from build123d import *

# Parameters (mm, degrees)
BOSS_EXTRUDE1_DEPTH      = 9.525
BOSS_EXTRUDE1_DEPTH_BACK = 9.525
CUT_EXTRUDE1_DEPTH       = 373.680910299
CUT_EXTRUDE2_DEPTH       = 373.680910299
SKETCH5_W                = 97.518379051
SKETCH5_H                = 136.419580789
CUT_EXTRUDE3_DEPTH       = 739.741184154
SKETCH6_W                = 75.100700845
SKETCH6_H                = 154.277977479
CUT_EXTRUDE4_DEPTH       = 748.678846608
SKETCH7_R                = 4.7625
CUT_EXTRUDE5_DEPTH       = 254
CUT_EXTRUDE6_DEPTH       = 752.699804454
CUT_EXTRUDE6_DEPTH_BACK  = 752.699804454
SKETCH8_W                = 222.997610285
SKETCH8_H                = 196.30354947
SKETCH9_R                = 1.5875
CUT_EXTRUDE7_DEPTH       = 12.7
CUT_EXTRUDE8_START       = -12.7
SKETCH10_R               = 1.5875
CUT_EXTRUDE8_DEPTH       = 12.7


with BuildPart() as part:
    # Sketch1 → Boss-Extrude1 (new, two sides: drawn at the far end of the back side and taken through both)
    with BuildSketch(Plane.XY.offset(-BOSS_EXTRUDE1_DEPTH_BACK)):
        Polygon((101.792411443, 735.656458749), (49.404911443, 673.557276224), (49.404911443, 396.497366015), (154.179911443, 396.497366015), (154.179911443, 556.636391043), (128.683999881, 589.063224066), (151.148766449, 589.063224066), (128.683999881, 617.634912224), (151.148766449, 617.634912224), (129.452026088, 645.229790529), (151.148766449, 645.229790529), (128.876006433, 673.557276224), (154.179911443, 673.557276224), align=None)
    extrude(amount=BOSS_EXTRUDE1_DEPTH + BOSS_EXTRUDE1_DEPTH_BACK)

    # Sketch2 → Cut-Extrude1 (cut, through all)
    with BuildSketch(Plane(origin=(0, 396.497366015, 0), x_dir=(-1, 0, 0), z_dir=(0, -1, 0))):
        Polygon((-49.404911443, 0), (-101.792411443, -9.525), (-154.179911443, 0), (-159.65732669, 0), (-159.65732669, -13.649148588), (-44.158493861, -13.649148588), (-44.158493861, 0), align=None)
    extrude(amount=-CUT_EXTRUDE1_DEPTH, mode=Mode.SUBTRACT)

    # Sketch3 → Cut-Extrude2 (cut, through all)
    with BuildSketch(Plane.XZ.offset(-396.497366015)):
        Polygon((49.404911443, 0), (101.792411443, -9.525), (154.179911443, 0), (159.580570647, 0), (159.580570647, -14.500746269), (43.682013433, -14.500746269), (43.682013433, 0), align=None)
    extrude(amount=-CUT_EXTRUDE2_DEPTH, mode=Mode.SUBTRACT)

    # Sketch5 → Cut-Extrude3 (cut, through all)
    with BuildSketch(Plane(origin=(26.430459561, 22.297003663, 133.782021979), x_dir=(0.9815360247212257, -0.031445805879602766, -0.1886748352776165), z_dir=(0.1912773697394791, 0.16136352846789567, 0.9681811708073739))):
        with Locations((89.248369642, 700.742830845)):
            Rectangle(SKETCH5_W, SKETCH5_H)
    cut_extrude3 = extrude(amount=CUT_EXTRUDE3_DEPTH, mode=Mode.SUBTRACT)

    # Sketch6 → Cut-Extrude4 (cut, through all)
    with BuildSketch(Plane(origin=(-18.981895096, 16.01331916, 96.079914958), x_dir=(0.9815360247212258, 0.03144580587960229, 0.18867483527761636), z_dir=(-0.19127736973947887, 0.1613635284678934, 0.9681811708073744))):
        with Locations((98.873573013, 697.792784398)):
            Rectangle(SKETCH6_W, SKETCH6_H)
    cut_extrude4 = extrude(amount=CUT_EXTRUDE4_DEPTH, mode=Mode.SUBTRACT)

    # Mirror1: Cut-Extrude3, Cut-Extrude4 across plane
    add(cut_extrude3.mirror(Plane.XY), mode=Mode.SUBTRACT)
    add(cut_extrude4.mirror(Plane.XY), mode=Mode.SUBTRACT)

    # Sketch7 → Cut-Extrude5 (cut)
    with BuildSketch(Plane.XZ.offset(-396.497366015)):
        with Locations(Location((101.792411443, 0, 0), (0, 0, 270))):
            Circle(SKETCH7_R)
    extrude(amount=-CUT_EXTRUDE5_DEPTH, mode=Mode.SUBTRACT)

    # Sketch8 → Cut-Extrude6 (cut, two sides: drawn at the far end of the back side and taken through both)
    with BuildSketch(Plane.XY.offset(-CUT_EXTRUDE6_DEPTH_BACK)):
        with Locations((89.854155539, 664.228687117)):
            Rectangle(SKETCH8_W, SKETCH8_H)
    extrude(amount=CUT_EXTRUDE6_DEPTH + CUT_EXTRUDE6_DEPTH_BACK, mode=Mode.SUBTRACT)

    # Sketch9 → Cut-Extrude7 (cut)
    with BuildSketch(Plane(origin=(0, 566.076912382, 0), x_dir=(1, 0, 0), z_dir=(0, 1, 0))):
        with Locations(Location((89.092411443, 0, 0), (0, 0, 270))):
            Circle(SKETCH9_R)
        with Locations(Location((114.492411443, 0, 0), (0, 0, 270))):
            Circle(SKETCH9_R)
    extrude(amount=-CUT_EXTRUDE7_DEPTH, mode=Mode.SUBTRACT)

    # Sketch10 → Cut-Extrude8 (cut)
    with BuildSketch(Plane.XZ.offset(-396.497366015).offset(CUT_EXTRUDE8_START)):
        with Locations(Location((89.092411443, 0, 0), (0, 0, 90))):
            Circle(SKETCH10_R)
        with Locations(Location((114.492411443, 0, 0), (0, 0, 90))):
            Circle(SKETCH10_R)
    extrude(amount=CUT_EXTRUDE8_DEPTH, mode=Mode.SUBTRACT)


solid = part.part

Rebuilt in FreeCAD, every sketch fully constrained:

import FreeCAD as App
import Part
import Sketcher
from FreeCAD import Vector
Q = App.Units.Quantity


def add_polygon(sketch, points):
    """Adds a closed chain of lines whose ends are joined by coincident constraints."""
    first, n = sketch.GeometryCount, len(points)
    for a, b in zip(points, points[1:] + points[:1]):
        sketch.addGeometry(Part.LineSegment(App.Vector(*a, 0), App.Vector(*b, 0)), False)
    for i in range(n):
        sketch.addConstraint(Sketcher.Constraint("Coincident", first + i, 2, first + (i + 1) % n, 1))

doc = App.newDocument("Part")
params = doc.addObject("Spreadsheet::Sheet", "Params")
for row, (alias, value) in enumerate([
    ("sketch1_width", "4.125 in"),
    ("pad1_length", "0.375 in"),
    ("pad1_length2", "0.375 in"),
    ("sketch6_diameter", "0.375 in"),
    ("pocket5_length", "10 in"),
    ("sketch8_diameter", "0.125 in"),
    ("pocket7_length", "0.5 in"),
    ("sketch9_diameter", "0.125 in"),
    ("pocket8_length", "0.5 in"),
], start=1):
    params.set(f"A{row}", alias)
    params.set(f"B{row}", "=" + value)
    params.setAlias(f"B{row}", alias)

body = doc.addObject("PartDesign::Body", "Body")

# Sketch on XY plane
sketch1 = doc.addObject("Sketcher::SketchObject", "Sketch")
body.addObject(sketch1)
sketch1.AttachmentSupport = (doc.XY_Plane, [""])
sketch1.MapMode = "FlatFace"
add_polygon(sketch1, [(101.792411, 735.656459), (49.404911, 673.557276), (49.404911, 396.497366), (154.179911, 396.497366), (154.179911, 556.636391), (128.684, 589.063224), (151.148766, 589.063224), (128.684, 617.634912), (151.148766, 617.634912), (129.452026, 645.229791), (151.148766, 645.229791), (128.876006, 673.557276), (154.179911, 673.557276)])  # lines 0-12
sketch1.addConstraint([
    Sketcher.Constraint("Vertical", 1),
    Sketcher.Constraint("Horizontal", 2),
    Sketcher.Constraint("Vertical", 3),
    Sketcher.Constraint("Horizontal", 5),
    Sketcher.Constraint("Horizontal", 7),
    Sketcher.Constraint("Horizontal", 9),
    Sketcher.Constraint("Horizontal", 11),
    Sketcher.Constraint("Parallel", 4, 6),
    Sketcher.Constraint("Parallel", 6, 8),
    Sketcher.Constraint("Parallel", 8, 10),
    Sketcher.Constraint("Horizontal", 0, 2, 10, 2),
    Sketcher.Constraint("Vertical", 4, 2, 6, 2),
    Sketcher.Constraint("Vertical", 5, 2, 7, 2),
    Sketcher.Constraint("Vertical", 7, 2, 9, 2),
    Sketcher.Constraint("Vertical", 3, 2, 11, 2),
    Sketcher.Constraint("Equal", 0, 12),
    Sketcher.Constraint("DistanceX", 2, 1, 2, 2, Q("4.125 in")),
    Sketcher.Constraint("DistanceX", 9, 1, 9, 2, 21.69674),
    Sketcher.Constraint("DistanceY", 1, 2, 1, 1, 277.05991),
    Sketcher.Constraint("DistanceX", -1, 1, 4, 2, 128.684),
    Sketcher.Constraint("Distance", 4, 41.249739),
    Sketcher.Constraint("Distance", 6, 36.345661),
    Sketcher.Constraint("DistanceX", 5, 1, 5, 2, 22.464767),
    Sketcher.Constraint("DistanceX", 11, 1, 11, 2, 25.303905),
    Sketcher.Constraint("DistanceY", -1, 1, 3, 2, 556.636391),
    Sketcher.Constraint("DistanceY", -1, 1, 12, 2, 735.656459),
])
sketch1.setExpression("Constraints[29]", "Params.sketch1_width")
pad1 = doc.addObject("PartDesign::Pad", "Pad")
body.addObject(pad1)
pad1.Profile = sketch1
pad1.Type = "TwoLengths"
pad1.setExpression("Length", "Params.pad1_length")
pad1.setExpression("Length2", "Params.pad1_length2")

# Sketch on XZ plane
sketch2 = doc.addObject("Sketcher::SketchObject", "Sketch001")
body.addObject(sketch2)
sketch2.AttachmentSupport = (doc.XZ_Plane, [""])
sketch2.MapMode = "FlatFace"
sketch2.AttachmentOffset = App.Placement(Vector(0, 0, -396.497366), App.Rotation())
add_polygon(sketch2, [(49.404911, 0), (101.792411, 9.525), (154.179911, 0), (159.657327, 0), (159.657327, 13.649149), (44.158494, 13.649149), (44.158494, 0)])  # lines 0-6
sketch2.addConstraint([
    Sketcher.Constraint("Horizontal", 2),
    Sketcher.Constraint("Vertical", 3),
    Sketcher.Constraint("Horizontal", 4),
    Sketcher.Constraint("Vertical", 5),
    Sketcher.Constraint("Horizontal", 6),
    Sketcher.Constraint("PointOnObject", 1, 2, -1),
    Sketcher.Constraint("PointOnObject", 5, 2, -1),
    Sketcher.Constraint("Equal", 0, 1),
    Sketcher.Constraint("DistanceY", -1, 1, 0, 2, Q("0.375 in")),
    Sketcher.Constraint("DistanceX", 0, 2, 1, 2, Q("2.0625 in")),
    Sketcher.Constraint("DistanceY", 3, 1, 3, 2, 13.649149),
    Sketcher.Constraint("DistanceX", 2, 1, 2, 2, 5.477415),
    Sketcher.Constraint("DistanceX", 4, 2, 4, 1, 115.498833),
    Sketcher.Constraint("DistanceX", -1, 1, 0, 2, 101.792411),
])
pocket1 = doc.addObject("PartDesign::Pocket", "Pocket")
body.addObject(pocket1)
pocket1.Profile = sketch2
pocket1.Type = "ThroughAll"

# Sketch on XZ plane
sketch3 = doc.addObject("Sketcher::SketchObject", "Sketch002")
body.addObject(sketch3)
sketch3.AttachmentSupport = (doc.XZ_Plane, [""])
sketch3.MapMode = "FlatFace"
sketch3.AttachmentOffset = App.Placement(Vector(0, 0, -396.497366), App.Rotation())
add_polygon(sketch3, [(101.792411, -9.525), (49.404911, 0), (43.682013, 0), (43.682013, -14.500746), (159.580571, -14.500746), (159.580571, 0), (154.179911, 0)])  # lines 0-6
sketch3.addConstraint([
    Sketcher.Constraint("Horizontal", 1),
    Sketcher.Constraint("Vertical", 2),
    Sketcher.Constraint("Horizontal", 3),
    Sketcher.Constraint("Vertical", 4),
    Sketcher.Constraint("Horizontal", 5),
    Sketcher.Constraint("PointOnObject", 0, 2, -1),
    Sketcher.Constraint("PointOnObject", 4, 2, -1),
    Sketcher.Constraint("Equal", 0, 6),
    Sketcher.Constraint("DistanceY", 6, 2, -1, 1, Q("0.375 in")),
    Sketcher.Constraint("DistanceX", 0, 2, 5, 2, Q("4.125 in")),
    Sketcher.Constraint("DistanceX", 1, 2, 1, 1, 5.722898),
    Sketcher.Constraint("DistanceX", 5, 2, 5, 1, 5.400659),
    Sketcher.Constraint("DistanceY", 2, 2, 2, 1, 14.500746),
    Sketcher.Constraint("DistanceX", -1, 1, 0, 2, 49.404911),
])
pocket2 = doc.addObject("PartDesign::Pocket", "Pocket001")
body.addObject(pocket2)
pocket2.Profile = sketch3
pocket2.Type = "ThroughAll"

# Sketch on an angled plane
sketch4 = doc.addObject("Sketcher::SketchObject", "Sketch003")
body.addObject(sketch4)
sketch4.Placement = App.Placement(Vector(26.43046, 22.297004, 133.782022), App.Rotation(Vector(0.981536025, -0.031445806, -0.188674835), Vector(0, 0.986393924, -0.164398987), Vector(0.19127737, 0.161363528, 0.968181171), "ZXY"))
add_polygon(sketch4, [(40.48918, 768.952622), (40.48918, 632.533041), (138.007559, 632.533041), (138.007559, 768.952622)])  # lines 0-3
sketch4.addConstraint([
    Sketcher.Constraint("Vertical", 0),
    Sketcher.Constraint("Horizontal", 1),
    Sketcher.Constraint("Vertical", 2),
    Sketcher.Constraint("Horizontal", 3),
    Sketcher.Constraint("DistanceX", 1, 1, 1, 2, 97.518379),
    Sketcher.Constraint("DistanceY", 0, 2, 0, 1, 136.419581),
    Sketcher.Constraint("DistanceX", -1, 1, 0, 2, 40.48918),
    Sketcher.Constraint("DistanceY", -1, 1, 0, 2, 632.533041),
])
pocket3 = doc.addObject("PartDesign::Pocket", "Pocket002")
body.addObject(pocket3)
pocket3.Profile = sketch4
pocket3.Type = "ThroughAll"
pocket3.Reversed = True

# Sketch on an angled plane
sketch5 = doc.addObject("Sketcher::SketchObject", "Sketch004")
body.addObject(sketch5)
sketch5.Placement = App.Placement(Vector(-18.981895, 16.013319, 96.079915), App.Rotation(Vector(0.981536025, 0.031445806, 0.188674835), Vector(0, 0.986393924, -0.164398987), Vector(-0.19127737, 0.161363528, 0.968181171), "ZXY"))
add_polygon(sketch5, [(61.323223, 774.931774), (61.323223, 620.653796), (136.423923, 620.653796), (136.423923, 774.931774)])  # lines 0-3
sketch5.addConstraint([
    Sketcher.Constraint("Vertical", 0),
    Sketcher.Constraint("Horizontal", 1),
    Sketcher.Constraint("Vertical", 2),
    Sketcher.Constraint("Horizontal", 3),
    Sketcher.Constraint("DistanceX", 1, 1, 1, 2, 75.100701),
    Sketcher.Constraint("DistanceX", -1, 1, 0, 2, Q("2.4143001 in")),
    Sketcher.Constraint("DistanceY", 0, 2, 0, 1, 154.277978),
    Sketcher.Constraint("DistanceY", -1, 1, 0, 2, 620.653796),
])
pocket4 = doc.addObject("PartDesign::Pocket", "Pocket003")
body.addObject(pocket4)
pocket4.Profile = sketch5
pocket4.Type = "ThroughAll"
pocket4.Reversed = True
doc.recompute()

mirrored = doc.addObject("PartDesign::Mirrored", "Mirrored")
body.addObject(mirrored)
mirrored.Originals = [pocket3, pocket4]
mirrored.MirrorPlane = (doc.XY_Plane, [""])
body.Tip = mirrored

# Sketch on XZ plane
sketch6 = doc.addObject("Sketcher::SketchObject", "Sketch005")
body.addObject(sketch6)
sketch6.AttachmentSupport = (doc.XZ_Plane, [""])
sketch6.MapMode = "FlatFace"
sketch6.AttachmentOffset = App.Placement(Vector(0, 0, -396.497366), App.Rotation())
sketch6.addGeometry(Part.Circle(Vector(101.792411, 0, 0), Vector(0, 0, 1), 4.7625), False)
sketch6.addConstraint([
    Sketcher.Constraint("PointOnObject", 0, 3, -1),
    Sketcher.Constraint("Diameter", 0, Q("0.375 in")),
    Sketcher.Constraint("DistanceX", -1, 1, 0, 3, 101.792411),
])
sketch6.setExpression("Constraints[1]", "Params.sketch6_diameter")
pocket5 = doc.addObject("PartDesign::Pocket", "Pocket004")
body.addObject(pocket5)
pocket5.Profile = sketch6
pocket5.setExpression("Length", "Params.pocket5_length")

# Sketch on XY plane
sketch7 = doc.addObject("Sketcher::SketchObject", "Sketch006")
body.addObject(sketch7)
sketch7.AttachmentSupport = (doc.XY_Plane, [""])
sketch7.MapMode = "FlatFace"
add_polygon(sketch7, [(-21.64465, 762.380462), (-21.64465, 566.076912), (201.352961, 566.076912), (201.352961, 762.380462)])  # lines 0-3
sketch7.addConstraint([
    Sketcher.Constraint("Vertical", 0),
    Sketcher.Constraint("Horizontal", 1),
    Sketcher.Constraint("Vertical", 2),
    Sketcher.Constraint("Horizontal", 3),
    Sketcher.Constraint("DistanceX", 1, 1, 1, 2, 222.99761),
    Sketcher.Constraint("DistanceY", 0, 2, 0, 1, 196.303549),
    Sketcher.Constraint("DistanceX", 0, 2, -1, 1, 21.64465),
    Sketcher.Constraint("DistanceY", -1, 1, 2, 2, 762.380462),
])
pocket6 = doc.addObject("PartDesign::Pocket", "Pocket005")
body.addObject(pocket6)
pocket6.Profile = sketch7
pocket6.Type = "ThroughAll"
pocket6.Midplane = True

# Sketch on XZ plane
sketch8 = doc.addObject("Sketcher::SketchObject", "Sketch007")
body.addObject(sketch8)
sketch8.AttachmentSupport = (doc.XZ_Plane, [""])
sketch8.MapMode = "FlatFace"
sketch8.AttachmentOffset = App.Placement(Vector(0, 0, -566.076912), App.Rotation())
sketch8.addGeometry([
    Part.Circle(Vector(89.092411, 0, 0), Vector(0, 0, 1), 1.5875),
    Part.Circle(Vector(114.492411, 0, 0), Vector(0, 0, 1), 1.5875),
], False)
sketch8.addConstraint([
    Sketcher.Constraint("Equal", 0, 1),
    Sketcher.Constraint("PointOnObject", 0, 3, -1),
    Sketcher.Constraint("PointOnObject", 1, 3, -1),
    Sketcher.Constraint("Diameter", 0, Q("0.125 in")),
    Sketcher.Constraint("DistanceX", 0, 3, 1, 3, Q("1 in")),
    Sketcher.Constraint("DistanceX", -1, 1, 0, 3, 89.092411),
])
sketch8.setExpression("Constraints[3]", "Params.sketch8_diameter")
pocket7 = doc.addObject("PartDesign::Pocket", "Pocket006")
body.addObject(pocket7)
pocket7.Profile = sketch8
pocket7.setExpression("Length", "Params.pocket7_length")
pocket7.Reversed = True

# Sketch on XZ plane
sketch9 = doc.addObject("Sketcher::SketchObject", "Sketch008")
body.addObject(sketch9)
sketch9.AttachmentSupport = (doc.XZ_Plane, [""])
sketch9.MapMode = "FlatFace"
sketch9.AttachmentOffset = App.Placement(Vector(0, 0, -409.197366), App.Rotation())
sketch9.addGeometry([
    Part.Circle(Vector(89.092411, 0, 0), Vector(0, 0, 1), 1.5875),
    Part.Circle(Vector(114.492411, 0, 0), Vector(0, 0, 1), 1.5875),
], False)
sketch9.addConstraint([
    Sketcher.Constraint("Equal", 0, 1),
    Sketcher.Constraint("PointOnObject", 0, 3, -1),
    Sketcher.Constraint("PointOnObject", 1, 3, -1),
    Sketcher.Constraint("Diameter", 0, Q("0.125 in")),
    Sketcher.Constraint("DistanceX", 0, 3, 1, 3, Q("1 in")),
    Sketcher.Constraint("DistanceX", -1, 1, 0, 3, 89.092411),
])
sketch9.setExpression("Constraints[3]", "Params.sketch9_diameter")
pocket8 = doc.addObject("PartDesign::Pocket", "Pocket007")
body.addObject(pocket8)
pocket8.Profile = sketch9
pocket8.setExpression("Length", "Params.pocket8_length")
pocket8.Reversed = True

doc.recompute()
